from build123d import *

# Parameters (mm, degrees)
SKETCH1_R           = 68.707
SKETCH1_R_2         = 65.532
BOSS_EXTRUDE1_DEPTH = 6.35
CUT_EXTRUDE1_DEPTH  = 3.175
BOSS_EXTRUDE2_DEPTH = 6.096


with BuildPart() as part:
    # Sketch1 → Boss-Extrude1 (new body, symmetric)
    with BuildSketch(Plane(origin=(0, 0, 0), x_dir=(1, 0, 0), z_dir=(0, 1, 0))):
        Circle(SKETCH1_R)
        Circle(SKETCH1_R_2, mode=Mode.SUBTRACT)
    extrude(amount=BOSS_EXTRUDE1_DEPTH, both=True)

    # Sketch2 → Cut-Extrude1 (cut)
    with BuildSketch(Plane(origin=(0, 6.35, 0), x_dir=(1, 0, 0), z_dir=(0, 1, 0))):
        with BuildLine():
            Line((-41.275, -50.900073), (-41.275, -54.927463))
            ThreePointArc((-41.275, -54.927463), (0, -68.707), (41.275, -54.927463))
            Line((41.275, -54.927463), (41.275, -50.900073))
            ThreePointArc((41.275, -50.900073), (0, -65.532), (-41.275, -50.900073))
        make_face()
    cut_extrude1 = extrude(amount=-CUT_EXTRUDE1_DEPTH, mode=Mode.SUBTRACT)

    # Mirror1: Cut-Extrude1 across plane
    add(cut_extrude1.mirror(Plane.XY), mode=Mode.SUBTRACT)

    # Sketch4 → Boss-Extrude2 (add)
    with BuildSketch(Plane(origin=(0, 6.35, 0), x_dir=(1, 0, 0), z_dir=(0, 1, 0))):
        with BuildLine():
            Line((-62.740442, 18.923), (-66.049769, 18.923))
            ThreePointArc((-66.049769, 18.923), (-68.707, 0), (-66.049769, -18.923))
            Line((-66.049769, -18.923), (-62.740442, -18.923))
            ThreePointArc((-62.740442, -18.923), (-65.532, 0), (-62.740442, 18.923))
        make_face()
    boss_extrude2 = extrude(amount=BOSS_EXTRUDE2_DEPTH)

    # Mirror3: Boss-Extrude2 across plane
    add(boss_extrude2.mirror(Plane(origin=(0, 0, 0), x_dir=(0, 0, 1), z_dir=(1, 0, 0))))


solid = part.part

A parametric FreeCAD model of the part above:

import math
import FreeCAD as App
import Part
import Sketcher

V = App.Vector
Q = App.Units.Quantity

doc = App.newDocument("Part")
body = doc.addObject("PartDesign::Body", "Body")

sketch1 = body.newObject("Sketcher::SketchObject", "Sketch")
sketch1.AttachmentSupport = (doc.getObject("XZ_Plane"), [""])
sketch1.MapMode = "FlatFace"
sketch1.addGeometry([
    Part.Circle(V(0, 0, 0), V(0, 0, 1), 68.707),
    Part.Circle(V(0, 0, 0), V(0, 0, 1), 65.532),
], False)
sketch1.addConstraint([
    Sketcher.Constraint("Coincident", 0, 3, -1, 1),
    Sketcher.Constraint("Coincident", 1, 3, -1, 1),
    Sketcher.Constraint("Diameter", 0, Q("5.41 in")),
    Sketcher.Constraint("Diameter", 1, Q("5.16 in")),
])
pad1 = body.newObject("PartDesign::Pad", "Pad")
pad1.Profile = sketch1
pad1.Length = Q("0.5 in")
pad1.Midplane = True

sketch2 = body.newObject("Sketcher::SketchObject", "Sketch001")
sketch2.AttachmentSupport = (doc.getObject("XZ_Plane"), [""])
sketch2.MapMode = "FlatFace"
sketch2.AttachmentOffset = App.Placement(V(0, 0, -0.25 * 25.4), App.Rotation())
sketch2.addGeometry([
    Part.LineSegment(V(-41.275, 50.900073, 0), V(-41.275, 54.927463, 0)),
    Part.ArcOfCircle(Part.Circle(V(0, 0.000001, 0), V(0, 0, 1), 68.706999), math.radians(53.07713), math.radians(126.92287)),
    Part.LineSegment(V(41.275, 54.927463, 0), V(41.275, 50.900073, 0)),
    Part.ArcOfCircle(Part.Circle(V(0, -0.000001, 0), V(0, 0, 1), 65.532001), math.radians(50.961316), math.radians(129.038684)),
], False)
sketch2.addConstraint([
    Sketcher.Constraint("Coincident", 0, 2, 1, 2),
    Sketcher.Constraint("Coincident", 1, 1, 2, 1),
    Sketcher.Constraint("Coincident", 2, 2, 3, 1),
    Sketcher.Constraint("Coincident", 3, 2, 0, 1),
    Sketcher.Constraint("Vertical", 0),
    Sketcher.Constraint("Vertical", 2),
    Sketcher.Constraint("Coincident", 1, 3, -1, 1),
    Sketcher.Constraint("Coincident", 3, 3, -1, 1),
    Sketcher.Constraint("Horizontal", 0, 2, 1, 1),
    Sketcher.Constraint("Radius", 3, Q("2.58 in")),
    Sketcher.Constraint("Radius", 1, Q("2.705 in")),
    Sketcher.Constraint("DistanceX", 0, 2, 1, 1, Q("3.25 in")),
])
pocket1 = body.newObject("PartDesign::Pocket", "Pocket")
pocket1.Profile = sketch2
pocket1.Length = Q("0.125 in")
pocket1.Reversed = True
doc.recompute()

mirrored = body.newObject("PartDesign::Mirrored", "Mirrored")
mirrored.Originals = [pocket1]
mirrored.MirrorPlane = (doc.getObject("XY_Plane"), [""])
body.Tip = mirrored

sketch3 = body.newObject("Sketcher::SketchObject", "Sketch002")
sketch3.AttachmentSupport = (doc.getObject("XZ_Plane"), [""])
sketch3.MapMode = "FlatFace"
sketch3.AttachmentOffset = App.Placement(V(0, 0, -0.25 * 25.4), App.Rotation())
sketch3.addGeometry([
    Part.LineSegment(V(-62.740442, -18.923, 0), V(-66.049769, -18.923, 0)),
    Part.ArcOfCircle(Part.Circle(V(0.000012, 0, 0), V(0, 0, 1), 68.707012), math.radians(164.013203), math.radians(195.986797)),
    Part.LineSegment(V(-66.049769, 18.923, 0), V(-62.740442, 18.923, 0)),
    Part.ArcOfCircle(Part.Circle(V(-0.000006, 0, 0), V(0, 0, 1), 65.531994), math.radians(163.216283), math.radians(196.783717)),
], False)
sketch3.addConstraint([
    Sketcher.Constraint("Coincident", 0, 2, 1, 2),
    Sketcher.Constraint("Coincident", 1, 1, 2, 1),
    Sketcher.Constraint("Coincident", 2, 2, 3, 1),
    Sketcher.Constraint("Coincident", 3, 2, 0, 1),
    Sketcher.Constraint("Horizontal", 0),
    Sketcher.Constraint("Horizontal", 2),
    Sketcher.Constraint("Coincident", 3, 3, -1, 1),
    Sketcher.Constraint("Symmetric", 1, 3, 3, 3, -1, 1),
    Sketcher.Constraint("Vertical", 0, 2, 1, 1),
    Sketcher.Constraint("DistanceY", 0, 2, 1, 1, Q("1.49 in")),
    Sketcher.Constraint("Radius", 1, Q("68.707012 mm")),
    Sketcher.Constraint("Radius", 3, Q("65.531994 mm")),
])
pad2 = body.newObject("PartDesign::Pad", "Pad001")
pad2.Profile = sketch3
pad2.Length = Q("0.24 in")
pad2.Reversed = True
doc.recompute()

mirrored2 = body.newObject("PartDesign::Mirrored", "Mirrored001")
mirrored2.Originals = [pad2]
mirrored2.MirrorPlane = (doc.getObject("YZ_Plane"), [""])
body.Tip = mirrored2

doc.recompute()
